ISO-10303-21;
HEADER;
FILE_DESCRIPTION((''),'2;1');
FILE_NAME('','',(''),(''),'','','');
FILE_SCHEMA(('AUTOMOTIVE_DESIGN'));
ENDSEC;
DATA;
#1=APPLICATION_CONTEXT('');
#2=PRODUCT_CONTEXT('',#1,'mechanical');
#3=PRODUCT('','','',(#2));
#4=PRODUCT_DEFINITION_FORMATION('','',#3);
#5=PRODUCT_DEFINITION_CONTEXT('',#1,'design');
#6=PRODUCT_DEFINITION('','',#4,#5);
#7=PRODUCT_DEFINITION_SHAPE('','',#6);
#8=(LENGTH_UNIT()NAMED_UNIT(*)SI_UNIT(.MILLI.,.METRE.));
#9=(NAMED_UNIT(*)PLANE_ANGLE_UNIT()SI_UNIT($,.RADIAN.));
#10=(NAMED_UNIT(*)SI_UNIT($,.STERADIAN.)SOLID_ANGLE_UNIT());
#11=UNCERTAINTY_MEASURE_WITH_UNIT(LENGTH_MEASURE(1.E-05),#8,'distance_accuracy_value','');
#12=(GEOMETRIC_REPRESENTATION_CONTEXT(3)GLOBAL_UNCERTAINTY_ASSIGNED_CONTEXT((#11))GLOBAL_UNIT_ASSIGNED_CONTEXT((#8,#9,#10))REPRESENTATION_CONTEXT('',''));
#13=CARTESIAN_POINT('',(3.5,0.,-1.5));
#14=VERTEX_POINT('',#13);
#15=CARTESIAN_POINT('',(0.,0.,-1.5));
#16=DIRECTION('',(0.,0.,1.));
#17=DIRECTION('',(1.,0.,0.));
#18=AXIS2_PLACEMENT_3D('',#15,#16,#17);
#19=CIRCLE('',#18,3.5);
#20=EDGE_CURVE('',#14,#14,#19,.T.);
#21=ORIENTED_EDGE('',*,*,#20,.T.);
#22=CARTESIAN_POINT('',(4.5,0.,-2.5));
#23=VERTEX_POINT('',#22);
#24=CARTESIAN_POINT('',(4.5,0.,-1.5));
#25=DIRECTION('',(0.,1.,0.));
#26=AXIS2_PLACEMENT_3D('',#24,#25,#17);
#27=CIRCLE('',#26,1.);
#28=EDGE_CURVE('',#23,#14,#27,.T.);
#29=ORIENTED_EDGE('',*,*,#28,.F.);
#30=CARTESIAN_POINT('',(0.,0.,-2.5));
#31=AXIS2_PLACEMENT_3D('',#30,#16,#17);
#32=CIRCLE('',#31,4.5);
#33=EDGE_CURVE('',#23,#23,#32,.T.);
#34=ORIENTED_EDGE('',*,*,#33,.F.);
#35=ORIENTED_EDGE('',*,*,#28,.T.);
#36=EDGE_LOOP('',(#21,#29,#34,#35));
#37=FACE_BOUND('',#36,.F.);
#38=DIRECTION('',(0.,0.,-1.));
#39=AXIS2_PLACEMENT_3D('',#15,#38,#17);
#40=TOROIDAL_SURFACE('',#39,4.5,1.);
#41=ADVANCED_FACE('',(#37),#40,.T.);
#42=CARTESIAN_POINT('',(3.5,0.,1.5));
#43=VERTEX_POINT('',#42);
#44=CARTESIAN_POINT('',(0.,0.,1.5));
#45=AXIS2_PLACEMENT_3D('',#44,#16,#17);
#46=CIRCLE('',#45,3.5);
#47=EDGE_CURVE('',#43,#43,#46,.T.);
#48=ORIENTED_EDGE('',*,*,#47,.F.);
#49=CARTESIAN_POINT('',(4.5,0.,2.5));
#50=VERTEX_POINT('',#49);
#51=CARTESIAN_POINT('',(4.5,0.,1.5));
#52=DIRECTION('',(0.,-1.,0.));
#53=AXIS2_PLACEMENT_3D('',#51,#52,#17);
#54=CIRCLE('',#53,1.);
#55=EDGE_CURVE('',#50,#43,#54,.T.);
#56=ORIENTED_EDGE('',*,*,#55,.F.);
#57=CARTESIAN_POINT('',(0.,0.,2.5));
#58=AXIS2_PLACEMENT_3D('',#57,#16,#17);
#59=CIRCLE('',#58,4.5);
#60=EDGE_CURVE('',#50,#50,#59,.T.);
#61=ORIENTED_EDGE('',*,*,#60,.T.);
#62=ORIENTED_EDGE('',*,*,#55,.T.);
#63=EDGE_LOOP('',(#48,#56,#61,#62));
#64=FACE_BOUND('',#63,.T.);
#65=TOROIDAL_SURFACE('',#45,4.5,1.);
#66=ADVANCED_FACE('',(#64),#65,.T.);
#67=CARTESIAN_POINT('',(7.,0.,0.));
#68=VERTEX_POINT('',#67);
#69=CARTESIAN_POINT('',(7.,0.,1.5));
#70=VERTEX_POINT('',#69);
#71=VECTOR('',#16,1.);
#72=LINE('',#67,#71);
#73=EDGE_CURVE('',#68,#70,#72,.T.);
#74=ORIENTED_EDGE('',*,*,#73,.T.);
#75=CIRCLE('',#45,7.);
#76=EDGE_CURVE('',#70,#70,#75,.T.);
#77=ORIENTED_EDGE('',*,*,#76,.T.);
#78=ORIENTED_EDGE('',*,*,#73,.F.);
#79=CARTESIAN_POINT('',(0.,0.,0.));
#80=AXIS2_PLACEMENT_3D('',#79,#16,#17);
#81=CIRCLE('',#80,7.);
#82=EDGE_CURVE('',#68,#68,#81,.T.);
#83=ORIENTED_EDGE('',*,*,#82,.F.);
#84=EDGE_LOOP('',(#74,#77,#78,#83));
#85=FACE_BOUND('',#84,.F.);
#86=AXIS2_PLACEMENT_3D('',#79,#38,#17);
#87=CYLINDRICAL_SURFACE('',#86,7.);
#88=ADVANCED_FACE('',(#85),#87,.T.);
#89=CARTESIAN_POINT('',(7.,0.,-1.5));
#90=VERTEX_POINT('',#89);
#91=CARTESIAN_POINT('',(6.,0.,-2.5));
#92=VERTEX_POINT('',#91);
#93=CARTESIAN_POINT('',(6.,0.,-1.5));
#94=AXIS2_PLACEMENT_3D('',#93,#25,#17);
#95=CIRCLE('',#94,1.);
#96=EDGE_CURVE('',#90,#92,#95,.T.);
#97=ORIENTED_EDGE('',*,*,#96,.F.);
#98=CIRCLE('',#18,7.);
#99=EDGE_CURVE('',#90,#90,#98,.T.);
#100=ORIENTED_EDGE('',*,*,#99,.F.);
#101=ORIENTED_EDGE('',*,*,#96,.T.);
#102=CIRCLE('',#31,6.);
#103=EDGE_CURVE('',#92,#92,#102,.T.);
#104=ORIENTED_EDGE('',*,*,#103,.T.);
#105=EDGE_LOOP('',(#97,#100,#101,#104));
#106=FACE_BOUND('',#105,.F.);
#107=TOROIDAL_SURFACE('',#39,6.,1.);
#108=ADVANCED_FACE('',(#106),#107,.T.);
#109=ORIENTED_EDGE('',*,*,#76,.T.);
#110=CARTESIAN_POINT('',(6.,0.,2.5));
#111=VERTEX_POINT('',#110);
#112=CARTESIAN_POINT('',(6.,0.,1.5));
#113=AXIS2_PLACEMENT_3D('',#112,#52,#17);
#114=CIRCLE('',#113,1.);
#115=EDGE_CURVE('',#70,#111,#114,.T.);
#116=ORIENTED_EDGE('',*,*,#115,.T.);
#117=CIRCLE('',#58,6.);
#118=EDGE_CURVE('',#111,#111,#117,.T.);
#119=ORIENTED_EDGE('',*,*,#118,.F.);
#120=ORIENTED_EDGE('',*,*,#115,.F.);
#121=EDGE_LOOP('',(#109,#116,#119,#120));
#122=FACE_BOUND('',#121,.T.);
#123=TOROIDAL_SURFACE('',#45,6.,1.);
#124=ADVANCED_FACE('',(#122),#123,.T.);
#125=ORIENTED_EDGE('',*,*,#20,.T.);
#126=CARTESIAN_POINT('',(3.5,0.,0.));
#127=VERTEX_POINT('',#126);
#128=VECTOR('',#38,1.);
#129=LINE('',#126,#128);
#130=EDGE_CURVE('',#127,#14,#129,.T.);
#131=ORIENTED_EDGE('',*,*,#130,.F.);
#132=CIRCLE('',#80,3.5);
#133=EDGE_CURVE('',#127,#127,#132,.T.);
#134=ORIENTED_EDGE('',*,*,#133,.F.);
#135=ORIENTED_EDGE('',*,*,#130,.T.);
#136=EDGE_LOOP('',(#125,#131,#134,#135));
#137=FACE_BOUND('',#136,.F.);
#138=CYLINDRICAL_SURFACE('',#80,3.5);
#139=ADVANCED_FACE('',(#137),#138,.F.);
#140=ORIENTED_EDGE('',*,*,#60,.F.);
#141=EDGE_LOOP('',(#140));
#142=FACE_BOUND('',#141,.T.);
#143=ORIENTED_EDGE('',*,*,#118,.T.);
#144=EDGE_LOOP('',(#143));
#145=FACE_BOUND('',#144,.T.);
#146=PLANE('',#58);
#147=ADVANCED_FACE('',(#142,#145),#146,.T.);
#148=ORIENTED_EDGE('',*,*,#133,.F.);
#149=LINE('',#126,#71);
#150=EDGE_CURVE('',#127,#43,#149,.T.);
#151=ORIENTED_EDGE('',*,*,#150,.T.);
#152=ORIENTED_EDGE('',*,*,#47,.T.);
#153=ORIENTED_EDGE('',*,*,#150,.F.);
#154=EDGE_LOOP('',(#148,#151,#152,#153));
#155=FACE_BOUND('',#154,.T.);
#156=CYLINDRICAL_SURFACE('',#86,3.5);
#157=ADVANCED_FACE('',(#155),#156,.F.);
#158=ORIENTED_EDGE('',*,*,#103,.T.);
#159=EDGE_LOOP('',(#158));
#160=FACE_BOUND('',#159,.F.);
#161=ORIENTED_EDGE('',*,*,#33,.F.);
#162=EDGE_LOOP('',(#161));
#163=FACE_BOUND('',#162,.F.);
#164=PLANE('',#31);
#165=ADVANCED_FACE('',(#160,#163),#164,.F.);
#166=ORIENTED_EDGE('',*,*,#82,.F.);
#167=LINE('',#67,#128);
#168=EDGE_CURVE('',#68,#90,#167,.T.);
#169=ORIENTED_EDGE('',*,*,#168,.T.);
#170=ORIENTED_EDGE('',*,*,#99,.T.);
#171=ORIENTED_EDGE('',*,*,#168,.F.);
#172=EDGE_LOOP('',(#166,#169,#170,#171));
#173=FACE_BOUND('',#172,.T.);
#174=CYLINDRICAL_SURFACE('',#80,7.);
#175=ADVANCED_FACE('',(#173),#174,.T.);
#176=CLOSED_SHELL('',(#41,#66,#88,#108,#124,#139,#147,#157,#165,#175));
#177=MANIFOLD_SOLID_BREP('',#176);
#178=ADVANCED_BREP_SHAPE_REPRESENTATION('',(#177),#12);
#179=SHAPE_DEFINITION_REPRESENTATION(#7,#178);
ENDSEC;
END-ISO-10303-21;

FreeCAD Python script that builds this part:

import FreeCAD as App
import Part
import Sketcher
from FreeCAD import Vector


def edges_at(feature, points):
    """Names of the edges that pass closest to the given points."""
    edges = feature.Shape.Edges
    near = lambda p: min(range(len(edges)), key=lambda i: edges[i].distToShape(Part.Vertex(*p))[0])
    return sorted({f"Edge{near(p) + 1}" for p in points})

doc = App.newDocument("Part")
params = doc.addObject("Spreadsheet::Sheet", "Params")
for row, (alias, value) in enumerate([
    ("sketch1_diameter", "14 mm"),
    ("sketch1_diameter2", "7 mm"),
    ("pad1_length", "5 mm"),
    ("fillet_radius", "1 mm"),
], start=1):
    params.set(f"A{row}", alias)
    params.set(f"B{row}", "=" + value)
    params.setAlias(f"B{row}", alias)

body = doc.addObject("PartDesign::Body", "Body")

sketch1 = body.newObject("Sketcher::SketchObject", "Sketch")
sketch1.AttachmentSupport = (doc.getObject("XY_Plane"), [""])
sketch1.MapMode = "FlatFace"
sketch1.addGeometry(Part.Circle(Vector(0, 0, 0), Vector(0, 0, 1), 7), False)
sketch1.addGeometry(Part.Circle(Vector(0, 0, 0), Vector(0, 0, 1), 3.5), False)
sketch1.addConstraint(Sketcher.Constraint("Coincident", 0, 3, -1, 1))
sketch1.addConstraint(Sketcher.Constraint("Coincident", 1, 3, -1, 1))
sketch1.addConstraint(Sketcher.Constraint("Diameter", 0, 14.0))
sketch1.addConstraint(Sketcher.Constraint("Diameter", 1, 7.0))
sketch1.setExpression("Constraints[2]", "Params.sketch1_diameter")
sketch1.setExpression("Constraints[3]", "Params.sketch1_diameter2")
pad1 = body.newObject("PartDesign::Pad", "Pad")
pad1.Profile = sketch1
pad1.setExpression("Length", "Params.pad1_length")
pad1.Midplane = True
doc.recompute()

fillet = body.newObject("PartDesign::Fillet", "Fillet")
fillet.Base = (pad1, edges_at(pad1, [
    (-7, 0, 2.5),
    (-7, 0, -2.5),
    (-3.5, 0, 2.5),
    (-3.5, 0, -2.5),
]))
fillet.setExpression("Radius", "Params.fillet_radius")

doc.recompute()
